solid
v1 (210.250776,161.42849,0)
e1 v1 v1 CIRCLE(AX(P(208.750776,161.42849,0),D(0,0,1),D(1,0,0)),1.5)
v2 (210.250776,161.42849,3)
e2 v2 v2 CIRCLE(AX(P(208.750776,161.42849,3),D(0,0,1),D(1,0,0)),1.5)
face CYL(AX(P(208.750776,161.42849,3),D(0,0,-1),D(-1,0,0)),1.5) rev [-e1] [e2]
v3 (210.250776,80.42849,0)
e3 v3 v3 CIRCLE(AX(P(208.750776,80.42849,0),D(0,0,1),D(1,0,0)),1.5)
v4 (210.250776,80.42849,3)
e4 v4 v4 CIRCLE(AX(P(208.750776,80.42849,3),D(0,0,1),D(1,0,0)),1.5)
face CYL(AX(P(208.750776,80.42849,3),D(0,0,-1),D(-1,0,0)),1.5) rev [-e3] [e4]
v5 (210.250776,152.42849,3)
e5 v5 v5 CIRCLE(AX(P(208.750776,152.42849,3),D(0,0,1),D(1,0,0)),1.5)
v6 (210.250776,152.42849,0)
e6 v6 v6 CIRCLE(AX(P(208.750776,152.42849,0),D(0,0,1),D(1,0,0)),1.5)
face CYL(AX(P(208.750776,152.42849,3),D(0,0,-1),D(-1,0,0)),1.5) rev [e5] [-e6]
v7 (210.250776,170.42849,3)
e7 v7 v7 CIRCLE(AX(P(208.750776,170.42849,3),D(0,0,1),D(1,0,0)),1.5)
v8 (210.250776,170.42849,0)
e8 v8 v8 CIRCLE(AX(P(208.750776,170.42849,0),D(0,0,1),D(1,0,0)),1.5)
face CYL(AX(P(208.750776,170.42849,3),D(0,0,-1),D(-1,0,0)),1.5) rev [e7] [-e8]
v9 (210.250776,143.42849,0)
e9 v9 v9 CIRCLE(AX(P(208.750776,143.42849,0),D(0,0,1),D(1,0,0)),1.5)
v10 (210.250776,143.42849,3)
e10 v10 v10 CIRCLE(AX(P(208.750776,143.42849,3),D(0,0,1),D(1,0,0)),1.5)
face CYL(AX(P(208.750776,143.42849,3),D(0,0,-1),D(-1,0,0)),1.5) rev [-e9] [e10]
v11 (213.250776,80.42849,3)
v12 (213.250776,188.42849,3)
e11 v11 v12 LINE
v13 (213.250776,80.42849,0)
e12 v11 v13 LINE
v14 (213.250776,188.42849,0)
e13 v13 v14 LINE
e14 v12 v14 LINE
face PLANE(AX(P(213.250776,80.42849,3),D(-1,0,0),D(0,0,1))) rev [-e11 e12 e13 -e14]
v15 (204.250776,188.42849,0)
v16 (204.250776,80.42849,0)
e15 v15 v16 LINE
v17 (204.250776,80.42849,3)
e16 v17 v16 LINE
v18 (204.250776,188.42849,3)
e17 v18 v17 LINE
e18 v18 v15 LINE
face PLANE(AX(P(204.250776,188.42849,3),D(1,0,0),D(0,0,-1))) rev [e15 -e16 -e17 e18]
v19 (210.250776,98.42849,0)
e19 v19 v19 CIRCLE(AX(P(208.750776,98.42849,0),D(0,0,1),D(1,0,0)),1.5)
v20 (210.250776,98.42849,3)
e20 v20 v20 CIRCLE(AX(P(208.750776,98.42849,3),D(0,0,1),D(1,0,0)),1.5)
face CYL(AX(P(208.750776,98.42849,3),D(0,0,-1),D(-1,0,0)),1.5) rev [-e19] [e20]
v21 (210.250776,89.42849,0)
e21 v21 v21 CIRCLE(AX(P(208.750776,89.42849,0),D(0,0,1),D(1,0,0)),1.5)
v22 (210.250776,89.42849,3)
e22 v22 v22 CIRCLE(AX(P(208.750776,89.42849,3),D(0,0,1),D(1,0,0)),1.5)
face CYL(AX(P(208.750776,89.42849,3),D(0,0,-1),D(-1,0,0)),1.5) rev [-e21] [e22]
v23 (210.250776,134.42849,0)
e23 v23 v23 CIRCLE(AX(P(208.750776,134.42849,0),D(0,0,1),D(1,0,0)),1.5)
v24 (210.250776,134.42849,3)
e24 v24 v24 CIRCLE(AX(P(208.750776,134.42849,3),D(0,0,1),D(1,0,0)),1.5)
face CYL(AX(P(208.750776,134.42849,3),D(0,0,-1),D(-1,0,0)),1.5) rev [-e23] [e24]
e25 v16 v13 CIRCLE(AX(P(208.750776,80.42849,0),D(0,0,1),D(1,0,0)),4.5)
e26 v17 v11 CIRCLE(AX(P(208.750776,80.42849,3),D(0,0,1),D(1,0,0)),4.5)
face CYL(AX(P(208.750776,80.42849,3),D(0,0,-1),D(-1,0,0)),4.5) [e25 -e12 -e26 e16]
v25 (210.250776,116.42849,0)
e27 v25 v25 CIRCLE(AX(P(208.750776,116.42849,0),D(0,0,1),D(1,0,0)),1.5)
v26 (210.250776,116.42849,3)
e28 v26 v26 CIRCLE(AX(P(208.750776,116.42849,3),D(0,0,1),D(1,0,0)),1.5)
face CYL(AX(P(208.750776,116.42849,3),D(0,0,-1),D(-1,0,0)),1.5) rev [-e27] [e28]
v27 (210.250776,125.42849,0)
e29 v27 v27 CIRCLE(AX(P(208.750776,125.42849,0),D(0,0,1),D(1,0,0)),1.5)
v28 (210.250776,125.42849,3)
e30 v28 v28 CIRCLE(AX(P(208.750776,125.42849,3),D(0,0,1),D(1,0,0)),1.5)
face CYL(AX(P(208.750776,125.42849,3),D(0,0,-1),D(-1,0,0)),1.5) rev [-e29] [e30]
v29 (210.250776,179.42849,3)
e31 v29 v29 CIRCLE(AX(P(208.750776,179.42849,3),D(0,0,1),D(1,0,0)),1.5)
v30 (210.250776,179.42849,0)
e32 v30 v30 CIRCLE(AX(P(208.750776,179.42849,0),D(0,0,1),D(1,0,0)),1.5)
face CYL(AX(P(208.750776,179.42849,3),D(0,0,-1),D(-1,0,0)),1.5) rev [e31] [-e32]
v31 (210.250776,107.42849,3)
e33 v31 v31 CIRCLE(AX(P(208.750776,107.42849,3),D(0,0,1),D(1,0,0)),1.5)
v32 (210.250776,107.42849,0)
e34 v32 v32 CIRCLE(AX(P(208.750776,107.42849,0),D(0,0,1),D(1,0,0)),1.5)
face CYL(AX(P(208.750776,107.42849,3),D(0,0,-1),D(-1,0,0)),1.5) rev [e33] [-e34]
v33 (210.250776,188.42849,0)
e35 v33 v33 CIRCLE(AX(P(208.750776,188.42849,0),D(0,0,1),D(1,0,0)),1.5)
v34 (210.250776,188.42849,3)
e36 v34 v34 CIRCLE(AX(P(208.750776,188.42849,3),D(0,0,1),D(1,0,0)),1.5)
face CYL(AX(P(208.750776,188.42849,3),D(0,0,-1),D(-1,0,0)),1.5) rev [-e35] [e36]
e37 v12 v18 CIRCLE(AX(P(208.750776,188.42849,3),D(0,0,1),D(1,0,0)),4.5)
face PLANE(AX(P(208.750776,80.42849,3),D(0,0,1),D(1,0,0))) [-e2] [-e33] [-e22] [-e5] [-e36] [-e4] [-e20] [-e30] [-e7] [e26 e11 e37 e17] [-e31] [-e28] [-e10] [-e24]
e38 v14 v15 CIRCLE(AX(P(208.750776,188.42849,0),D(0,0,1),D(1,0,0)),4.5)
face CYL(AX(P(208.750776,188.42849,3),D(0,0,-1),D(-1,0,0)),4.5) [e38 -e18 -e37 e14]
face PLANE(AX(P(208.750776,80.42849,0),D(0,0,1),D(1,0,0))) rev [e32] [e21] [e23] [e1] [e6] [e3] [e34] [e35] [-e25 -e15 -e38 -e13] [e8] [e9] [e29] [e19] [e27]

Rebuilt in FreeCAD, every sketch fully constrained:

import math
import FreeCAD as App
import Part
import Sketcher

V = App.Vector

doc = App.newDocument("Part")
body = doc.addObject("PartDesign::Body", "Body")

# Sketch on XY plane
sketch1 = doc.addObject("Sketcher::SketchObject", "Sketch")
body.addObject(sketch1)
sketch1.AttachmentSupport = (doc.XY_Plane, [""])
sketch1.MapMode = "FlatFace"
sketch1.addGeometry([
    Part.LineSegment(V(213.3, 80.4, 0), V(213.3, 188.4, 0)),  # 0
    Part.ArcOfCircle(Part.Circle(V(208.8, 188.4, 0), V(0, 0, 1), 4.5), math.radians(0), math.radians(180)),  # 1
    Part.LineSegment(V(204.3, 188.4, 0), V(204.3, 80.4, 0)),  # 2
    Part.ArcOfCircle(Part.Circle(V(208.8, 80.4, 0), V(0, 0, 1), 4.5), math.radians(180), math.radians(360)),  # 3
    Part.Circle(V(208.8, 80.4, 0), V(0, 0, 1), 1.5),  # 4
    Part.Circle(V(208.8, 89.4, 0), V(0, 0, 1), 1.5),  # 5
    Part.Circle(V(208.8, 98.4, 0), V(0, 0, 1), 1.5),  # 6
    Part.Circle(V(208.8, 107.4, 0), V(0, 0, 1), 1.5),  # 7
    Part.Circle(V(208.8, 116.4, 0), V(0, 0, 1), 1.5),  # 8
    Part.Circle(V(208.8, 125.4, 0), V(0, 0, 1), 1.5),  # 9
    Part.Circle(V(208.8, 134.4, 0), V(0, 0, 1), 1.5),  # 10
    Part.Circle(V(208.8, 143.4, 0), V(0, 0, 1), 1.5),  # 11
    Part.Circle(V(208.8, 152.4, 0), V(0, 0, 1), 1.5),  # 12
    Part.Circle(V(208.8, 161.4, 0), V(0, 0, 1), 1.5),  # 13
    Part.Circle(V(208.8, 170.4, 0), V(0, 0, 1), 1.5),  # 14
    Part.Circle(V(208.8, 179.4, 0), V(0, 0, 1), 1.5),  # 15
    Part.Circle(V(208.8, 188.4, 0), V(0, 0, 1), 1.5),  # 16
], False)
sketch1.addConstraint([
    Sketcher.Constraint("Tangent", 0, 2, 1, 1),
    Sketcher.Constraint("Tangent", 1, 2, 2, 1),
    Sketcher.Constraint("Tangent", 2, 2, 3, 1),
    Sketcher.Constraint("Tangent", 3, 2, 0, 1),
    Sketcher.Constraint("Vertical", 0),
    Sketcher.Constraint("Vertical", 2),
    Sketcher.Constraint("Coincident", 4, 3, 3, 3),
    Sketcher.Constraint("Coincident", 16, 3, 1, 3),
    Sketcher.Constraint("Equal", 4, 5),
    Sketcher.Constraint("Equal", 5, 6),
    Sketcher.Constraint("Equal", 6, 7),
    Sketcher.Constraint("Equal", 7, 8),
    Sketcher.Constraint("Equal", 8, 9),
    Sketcher.Constraint("Equal", 9, 10),
    Sketcher.Constraint("Equal", 10, 11),
    Sketcher.Constraint("Equal", 11, 12),
    Sketcher.Constraint("Equal", 12, 13),
    Sketcher.Constraint("Equal", 13, 14),
    Sketcher.Constraint("Equal", 14, 15),
    Sketcher.Constraint("Equal", 15, 16),
    Sketcher.Constraint("Vertical", 4, 3, 5, 3),
    Sketcher.Constraint("Vertical", 5, 3, 6, 3),
    Sketcher.Constraint("Vertical", 6, 3, 7, 3),
    Sketcher.Constraint("Vertical", 7, 3, 8, 3),
    Sketcher.Constraint("Vertical", 8, 3, 9, 3),
    Sketcher.Constraint("Vertical", 9, 3, 10, 3),
    Sketcher.Constraint("Vertical", 10, 3, 11, 3),
    Sketcher.Constraint("Vertical", 11, 3, 12, 3),
    Sketcher.Constraint("Vertical", 12, 3, 13, 3),
    Sketcher.Constraint("Vertical", 13, 3, 14, 3),
    Sketcher.Constraint("Vertical", 14, 3, 15, 3),
    Sketcher.Constraint("Diameter", 4, 3.0),
    Sketcher.Constraint("Radius", 1, 4.5),
    Sketcher.Constraint("DistanceY", 0, 1, 0, 2, 108.0),
    Sketcher.Constraint("DistanceY", 3, 3, 5, 3, 9.0),
    Sketcher.Constraint("DistanceY", 5, 3, 6, 3, 9.0),
    Sketcher.Constraint("DistanceY", 6, 3, 7, 3, 9.0),
    Sketcher.Constraint("DistanceY", 7, 3, 8, 3, 9.0),
    Sketcher.Constraint("DistanceY", 8, 3, 9, 3, 9.0),
    Sketcher.Constraint("DistanceY", 9, 3, 10, 3, 9.0),
    Sketcher.Constraint("DistanceY", 10, 3, 11, 3, 9.0),
    Sketcher.Constraint("DistanceY", 11, 3, 12, 3, 9.0),
    Sketcher.Constraint("DistanceY", 12, 3, 13, 3, 9.0),
    Sketcher.Constraint("DistanceY", 13, 3, 14, 3, 9.0),
    Sketcher.Constraint("DistanceY", 15, 3, 1, 3, 9.0),
    Sketcher.Constraint("DistanceY", -1, 1, 1, 3, 188.42849),
    Sketcher.Constraint("DistanceX", -1, 1, 1, 3, 208.750776),
])
pad1 = doc.addObject("PartDesign::Pad", "Pad")
body.addObject(pad1)
pad1.Profile = sketch1
pad1.Length = 3

doc.recompute()
